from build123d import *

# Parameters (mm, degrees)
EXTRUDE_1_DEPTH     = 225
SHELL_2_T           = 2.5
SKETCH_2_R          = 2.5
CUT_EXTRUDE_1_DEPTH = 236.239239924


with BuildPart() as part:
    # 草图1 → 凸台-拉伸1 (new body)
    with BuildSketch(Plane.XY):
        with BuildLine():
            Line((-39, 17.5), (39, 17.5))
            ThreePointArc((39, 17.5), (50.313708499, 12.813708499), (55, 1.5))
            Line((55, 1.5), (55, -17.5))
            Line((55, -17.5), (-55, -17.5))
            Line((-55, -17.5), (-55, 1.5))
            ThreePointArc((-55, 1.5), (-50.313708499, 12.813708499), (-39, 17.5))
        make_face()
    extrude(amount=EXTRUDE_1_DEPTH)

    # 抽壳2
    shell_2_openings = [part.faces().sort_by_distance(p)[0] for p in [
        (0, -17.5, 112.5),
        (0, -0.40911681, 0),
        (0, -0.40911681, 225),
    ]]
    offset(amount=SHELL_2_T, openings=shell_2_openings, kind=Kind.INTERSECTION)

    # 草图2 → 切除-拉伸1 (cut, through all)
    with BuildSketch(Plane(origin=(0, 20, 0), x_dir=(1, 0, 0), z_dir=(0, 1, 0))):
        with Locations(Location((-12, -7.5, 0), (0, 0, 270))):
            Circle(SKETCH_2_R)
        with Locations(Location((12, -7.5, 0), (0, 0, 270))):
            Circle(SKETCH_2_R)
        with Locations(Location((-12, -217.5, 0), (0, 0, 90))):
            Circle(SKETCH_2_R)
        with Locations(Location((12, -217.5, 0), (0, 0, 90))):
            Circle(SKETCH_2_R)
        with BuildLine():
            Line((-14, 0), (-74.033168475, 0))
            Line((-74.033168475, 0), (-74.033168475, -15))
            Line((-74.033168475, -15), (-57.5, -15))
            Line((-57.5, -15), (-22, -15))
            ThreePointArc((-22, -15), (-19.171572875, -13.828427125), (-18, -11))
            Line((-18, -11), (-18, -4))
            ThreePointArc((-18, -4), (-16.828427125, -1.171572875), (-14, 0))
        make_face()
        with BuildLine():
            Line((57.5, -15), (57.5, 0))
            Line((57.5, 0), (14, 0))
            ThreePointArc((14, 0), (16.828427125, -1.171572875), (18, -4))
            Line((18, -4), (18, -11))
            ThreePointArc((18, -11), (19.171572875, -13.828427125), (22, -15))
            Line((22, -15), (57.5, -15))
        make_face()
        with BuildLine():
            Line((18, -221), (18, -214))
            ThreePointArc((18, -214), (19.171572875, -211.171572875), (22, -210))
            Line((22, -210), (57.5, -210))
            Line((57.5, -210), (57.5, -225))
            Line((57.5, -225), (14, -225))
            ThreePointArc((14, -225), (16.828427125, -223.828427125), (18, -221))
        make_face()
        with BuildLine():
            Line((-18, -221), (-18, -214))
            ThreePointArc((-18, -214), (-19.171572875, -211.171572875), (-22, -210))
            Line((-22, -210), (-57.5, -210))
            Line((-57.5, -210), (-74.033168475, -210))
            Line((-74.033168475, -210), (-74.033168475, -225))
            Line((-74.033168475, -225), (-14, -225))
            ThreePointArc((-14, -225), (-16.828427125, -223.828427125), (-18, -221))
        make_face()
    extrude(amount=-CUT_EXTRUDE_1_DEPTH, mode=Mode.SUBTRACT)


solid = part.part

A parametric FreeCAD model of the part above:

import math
import FreeCAD as App
import Part
import Sketcher
from FreeCAD import Vector


def faces_at(feature, points):
    """Names of the faces that lie closest to the given points."""
    faces = feature.Shape.Faces
    near = lambda p: min(range(len(faces)), key=lambda i: faces[i].distToShape(Part.Vertex(*p))[0])
    return sorted({f"Face{near(p) + 1}" for p in points})

doc = App.newDocument("Part")
body = doc.addObject("PartDesign::Body", "Body")

# Sketch on XY plane
sketch1 = doc.addObject("Sketcher::SketchObject", "Sketch")
body.addObject(sketch1)
sketch1.AttachmentSupport = (doc.XY_Plane, [""])
sketch1.MapMode = "FlatFace"
sketch1.addGeometry(Part.LineSegment(Vector(39, 18, 0), Vector(-39, 18, 0)), False)
sketch1.addGeometry(Part.ArcOfCircle(Part.Circle(Vector(-39, 2, 0), Vector(0, 0, 1), 16), math.radians(90), math.radians(180)), False)
sketch1.addGeometry(Part.LineSegment(Vector(-55, 2, 0), Vector(-55, -18, 0)), False)
sketch1.addGeometry(Part.LineSegment(Vector(-55, -18, 0), Vector(55, -18, 0)), False)
sketch1.addGeometry(Part.LineSegment(Vector(55, -18, 0), Vector(55, 2, 0)), False)
sketch1.addGeometry(Part.ArcOfCircle(Part.Circle(Vector(39, 2, 0), Vector(0, 0, 1), 16), math.radians(0), math.radians(90)), False)
sketch1.addConstraint(Sketcher.Constraint("Tangent", 0, 2, 1, 1))
sketch1.addConstraint(Sketcher.Constraint("Tangent", 1, 2, 2, 1))
sketch1.addConstraint(Sketcher.Constraint("Coincident", 2, 2, 3, 1))
sketch1.addConstraint(Sketcher.Constraint("Coincident", 3, 2, 4, 1))
sketch1.addConstraint(Sketcher.Constraint("Tangent", 4, 2, 5, 1))
sketch1.addConstraint(Sketcher.Constraint("Tangent", 5, 2, 0, 1))
sketch1.addConstraint(Sketcher.Constraint("Horizontal", 0))
sketch1.addConstraint(Sketcher.Constraint("Vertical", 2))
sketch1.addConstraint(Sketcher.Constraint("Horizontal", 3))
sketch1.addConstraint(Sketcher.Constraint("Vertical", 4))
sketch1.addConstraint(Sketcher.Constraint("Equal", 1, 5))
sketch1.addConstraint(Sketcher.Constraint("Radius", 1, 16.0))
sketch1.addConstraint(Sketcher.Constraint("DistanceX", 0, 2, 0, 1, 78.0))
sketch1.addConstraint(Sketcher.Constraint("DistanceY", 2, 2, 2, 1, 19.0))
sketch1.addConstraint(Sketcher.Constraint("DistanceX", 1, 3, -1, 1, 39.0))
sketch1.addConstraint(Sketcher.Constraint("DistanceY", -1, 1, 1, 3, 1.5))
pad1 = doc.addObject("PartDesign::Pad", "Pad")
body.addObject(pad1)
pad1.Profile = sketch1
pad1.Length = 225
doc.recompute()

thickness = doc.addObject("PartDesign::Thickness", "Thickness")
body.addObject(thickness)
thickness.Base = (pad1, faces_at(pad1, [(0, -17.5, 112.5), (0, 0, 0), (0, 0, 225)]))
thickness.Value = 2.5
thickness.Reversed = False
thickness.Join = "Intersection"

# Sketch on XZ plane
sketch2 = doc.addObject("Sketcher::SketchObject", "Sketch001")
body.addObject(sketch2)
sketch2.AttachmentSupport = (doc.XZ_Plane, [""])
sketch2.MapMode = "FlatFace"
sketch2.AttachmentOffset = App.Placement(Vector(0, 0, -20), App.Rotation())
sketch2.addGeometry(Part.Circle(Vector(-12, 7.5, 0), Vector(0, 0, 1), 2.5), False)
sketch2.addGeometry(Part.Circle(Vector(12, 7.5, 0), Vector(0, 0, 1), 2.5), False)
sketch2.addGeometry(Part.Circle(Vector(-12, 217.5, 0), Vector(0, 0, 1), 2.5), False)
sketch2.addGeometry(Part.Circle(Vector(12, 217.5, 0), Vector(0, 0, 1), 2.5), False)
sketch2.addGeometry(Part.LineSegment(Vector(-14, 0, 0), Vector(-74, 0, 0)), False)
sketch2.addGeometry(Part.LineSegment(Vector(-74, 0, 0), Vector(-74, 15, 0)), False)
sketch2.addGeometry(Part.LineSegment(Vector(-74, 15, 0), Vector(-22, 15, 0)), False)
sketch2.addGeometry(Part.ArcOfCircle(Part.Circle(Vector(-22, 11, 0), Vector(0, 0, 1), 4), math.radians(0), math.radians(90)), False)
sketch2.addGeometry(Part.LineSegment(Vector(-18, 11, 0), Vector(-18, 4, 0)), False)
sketch2.addGeometry(Part.ArcOfCircle(Part.Circle(Vector(-14, 4, 0), Vector(0, 0, 1), 4), math.radians(180), math.radians(270)), False)
sketch2.addGeometry(Part.LineSegment(Vector(57.5, 15, 0), Vector(57.5, 0, 0)), False)
sketch2.addGeometry(Part.LineSegment(Vector(57.5, 0, 0), Vector(14, 0, 0)), False)
sketch2.addGeometry(Part.ArcOfCircle(Part.Circle(Vector(14, 4, 0), Vector(0, 0, 1), 4), math.radians(-90), math.radians(0)), False)
sketch2.addGeometry(Part.LineSegment(Vector(18, 4, 0), Vector(18, 11, 0)), False)
sketch2.addGeometry(Part.ArcOfCircle(Part.Circle(Vector(22, 11, 0), Vector(0, 0, 1), 4), math.radians(90), math.radians(180)), False)
sketch2.addGeometry(Part.LineSegment(Vector(22, 15, 0), Vector(57.5, 15, 0)), False)
sketch2.addGeometry(Part.LineSegment(Vector(18, 214, 0), Vector(18, 221, 0)), False)
sketch2.addGeometry(Part.ArcOfCircle(Part.Circle(Vector(14, 221, 0), Vector(0, 0, 1), 4), math.radians(0), math.radians(90)), False)
sketch2.addGeometry(Part.LineSegment(Vector(14, 225, 0), Vector(57.5, 225, 0)), False)
sketch2.addGeometry(Part.LineSegment(Vector(57.5, 225, 0), Vector(57.5, 210, 0)), False)
sketch2.addGeometry(Part.LineSegment(Vector(57.5, 210, 0), Vector(22, 210, 0)), False)
sketch2.addGeometry(Part.ArcOfCircle(Part.Circle(Vector(22, 214, 0), Vector(0, 0, 1), 4), math.radians(180), math.radians(270)), False)
sketch2.addGeometry(Part.LineSegment(Vector(-18, 221, 0), Vector(-18, 214, 0)), False)
sketch2.addGeometry(Part.ArcOfCircle(Part.Circle(Vector(-22, 214, 0), Vector(0, 0, 1), 4), math.radians(-90), math.radians(0)), False)
sketch2.addGeometry(Part.LineSegment(Vector(-22, 210, 0), Vector(-74, 210, 0)), False)
sketch2.addGeometry(Part.LineSegment(Vector(-74, 210, 0), Vector(-74, 225, 0)), False)
sketch2.addGeometry(Part.LineSegment(Vector(-74, 225, 0), Vector(-14, 225, 0)), False)
sketch2.addGeometry(Part.ArcOfCircle(Part.Circle(Vector(-14, 221, 0), Vector(0, 0, 1), 4), math.radians(90), math.radians(180)), False)
sketch2.addConstraint(Sketcher.Constraint("Coincident", 4, 2, 5, 1))
sketch2.addConstraint(Sketcher.Constraint("Coincident", 5, 2, 6, 1))
sketch2.addConstraint(Sketcher.Constraint("Tangent", 6, 2, 7, 2))
sketch2.addConstraint(Sketcher.Constraint("Tangent", 7, 1, 8, 1))
sketch2.addConstraint(Sketcher.Constraint("Tangent", 8, 2, 9, 1))
sketch2.addConstraint(Sketcher.Constraint("Tangent", 9, 2, 4, 1))
sketch2.addConstraint(Sketcher.Constraint("Coincident", 10, 2, 11, 1))
sketch2.addConstraint(Sketcher.Constraint("Tangent", 11, 2, 12, 1))
sketch2.addConstraint(Sketcher.Constraint("Tangent", 12, 2, 13, 1))
sketch2.addConstraint(Sketcher.Constraint("Tangent", 13, 2, 14, 2))
sketch2.addConstraint(Sketcher.Constraint("Tangent", 14, 1, 15, 1))
sketch2.addConstraint(Sketcher.Constraint("Coincident", 15, 2, 10, 1))
sketch2.addConstraint(Sketcher.Constraint("Tangent", 16, 2, 17, 1))
sketch2.addConstraint(Sketcher.Constraint("Tangent", 17, 2, 18, 1))
sketch2.addConstraint(Sketcher.Constraint("Coincident", 18, 2, 19, 1))
sketch2.addConstraint(Sketcher.Constraint("Coincident", 19, 2, 20, 1))
sketch2.addConstraint(Sketcher.Constraint("Tangent", 20, 2, 21, 2))
sketch2.addConstraint(Sketcher.Constraint("Tangent", 21, 1, 16, 1))
sketch2.addConstraint(Sketcher.Constraint("Tangent", 22, 2, 23, 2))
sketch2.addConstraint(Sketcher.Constraint("Tangent", 23, 1, 24, 1))
sketch2.addConstraint(Sketcher.Constraint("Coincident", 24, 2, 25, 1))
sketch2.addConstraint(Sketcher.Constraint("Coincident", 25, 2, 26, 1))
sketch2.addConstraint(Sketcher.Constraint("Tangent", 26, 2, 27, 1))
sketch2.addConstraint(Sketcher.Constraint("Tangent", 27, 2, 22, 1))
sketch2.addConstraint(Sketcher.Constraint("Horizontal", 4))
sketch2.addConstraint(Sketcher.Constraint("Vertical", 5))
sketch2.addConstraint(Sketcher.Constraint("Horizontal", 6))
sketch2.addConstraint(Sketcher.Constraint("Vertical", 8))
sketch2.addConstraint(Sketcher.Constraint("Vertical", 10))
sketch2.addConstraint(Sketcher.Constraint("Horizontal", 11))
sketch2.addConstraint(Sketcher.Constraint("Vertical", 13))
sketch2.addConstraint(Sketcher.Constraint("Horizontal", 15))
sketch2.addConstraint(Sketcher.Constraint("Vertical", 16))
sketch2.addConstraint(Sketcher.Constraint("Horizontal", 18))
sketch2.addConstraint(Sketcher.Constraint("Vertical", 19))
sketch2.addConstraint(Sketcher.Constraint("Horizontal", 20))
sketch2.addConstraint(Sketcher.Constraint("Vertical", 22))
sketch2.addConstraint(Sketcher.Constraint("Horizontal", 24))
sketch2.addConstraint(Sketcher.Constraint("Vertical", 25))
sketch2.addConstraint(Sketcher.Constraint("Horizontal", 26))
sketch2.addConstraint(Sketcher.Constraint("Equal", 0, 1))
sketch2.addConstraint(Sketcher.Constraint("Equal", 1, 2))
sketch2.addConstraint(Sketcher.Constraint("Equal", 2, 3))
sketch2.addConstraint(Sketcher.Constraint("Equal", 7, 9))
sketch2.addConstraint(Sketcher.Constraint("Equal", 9, 12))
sketch2.addConstraint(Sketcher.Constraint("Equal", 12, 14))
sketch2.addConstraint(Sketcher.Constraint("Equal", 14, 17))
sketch2.addConstraint(Sketcher.Constraint("Equal", 17, 21))
sketch2.addConstraint(Sketcher.Constraint("Equal", 21, 23))
sketch2.addConstraint(Sketcher.Constraint("Equal", 23, 27))
sketch2.addConstraint(Sketcher.Constraint("Symmetric", 9, 2, 11, 2, -1, 1))
sketch2.addConstraint(Sketcher.Constraint("Symmetric", 0, 3, 1, 3, -2))
sketch2.addConstraint(Sketcher.Constraint("Symmetric", 2, 3, 3, 3, -2))
sketch2.addConstraint(Sketcher.Constraint("Symmetric", 21, 3, 23, 3, -2))
sketch2.addConstraint(Sketcher.Constraint("PointOnObject", 4, 2, -1))
sketch2.addConstraint(Sketcher.Constraint("Horizontal", 7, 3, 14, 3))
sketch2.addConstraint(Sketcher.Constraint("Horizontal", 17, 3, 27, 3))
sketch2.addConstraint(Sketcher.Constraint("Vertical", 0, 3, 2, 3))
sketch2.addConstraint(Sketcher.Constraint("Vertical", 12, 3, 17, 3))
sketch2.addConstraint(Sketcher.Constraint("Vertical", 15, 2, 18, 2))
sketch2.addConstraint(Sketcher.Constraint("Vertical", 5, 2, 24, 2))
sketch2.addConstraint(Sketcher.Constraint("Equal", 13, 16))
sketch2.addConstraint(Sketcher.Constraint("Diameter", 0, 5.0))
sketch2.addConstraint(Sketcher.Constraint("Radius", 7, 4.0))
sketch2.addConstraint(Sketcher.Constraint("DistanceY", 5, 1, 5, 2, 15.0))
sketch2.addConstraint(Sketcher.Constraint("DistanceX", 11, 2, 11, 1, 43.5))
sketch2.addConstraint(Sketcher.Constraint("DistanceX", 0, 3, -1, 1, 12.0))
sketch2.addConstraint(Sketcher.Constraint("DistanceX", 7, 3, -1, 1, 22.0))
sketch2.addConstraint(Sketcher.Constraint("DistanceY", -1, 1, 17, 3, 221.0))
sketch2.addConstraint(Sketcher.Constraint("DistanceY", 0, 3, 2, 3, 210.0))
sketch2.addConstraint(Sketcher.Constraint("DistanceY", -1, 1, 0, 3, 7.5))
sketch2.addConstraint(Sketcher.Constraint("DistanceX", 4, 2, 4, 1, 60.033168))
pocket1 = doc.addObject("PartDesign::Pocket", "Pocket")
body.addObject(pocket1)
pocket1.Profile = sketch2
pocket1.Type = "ThroughAll"
pocket1.Reversed = True

doc.recompute()
